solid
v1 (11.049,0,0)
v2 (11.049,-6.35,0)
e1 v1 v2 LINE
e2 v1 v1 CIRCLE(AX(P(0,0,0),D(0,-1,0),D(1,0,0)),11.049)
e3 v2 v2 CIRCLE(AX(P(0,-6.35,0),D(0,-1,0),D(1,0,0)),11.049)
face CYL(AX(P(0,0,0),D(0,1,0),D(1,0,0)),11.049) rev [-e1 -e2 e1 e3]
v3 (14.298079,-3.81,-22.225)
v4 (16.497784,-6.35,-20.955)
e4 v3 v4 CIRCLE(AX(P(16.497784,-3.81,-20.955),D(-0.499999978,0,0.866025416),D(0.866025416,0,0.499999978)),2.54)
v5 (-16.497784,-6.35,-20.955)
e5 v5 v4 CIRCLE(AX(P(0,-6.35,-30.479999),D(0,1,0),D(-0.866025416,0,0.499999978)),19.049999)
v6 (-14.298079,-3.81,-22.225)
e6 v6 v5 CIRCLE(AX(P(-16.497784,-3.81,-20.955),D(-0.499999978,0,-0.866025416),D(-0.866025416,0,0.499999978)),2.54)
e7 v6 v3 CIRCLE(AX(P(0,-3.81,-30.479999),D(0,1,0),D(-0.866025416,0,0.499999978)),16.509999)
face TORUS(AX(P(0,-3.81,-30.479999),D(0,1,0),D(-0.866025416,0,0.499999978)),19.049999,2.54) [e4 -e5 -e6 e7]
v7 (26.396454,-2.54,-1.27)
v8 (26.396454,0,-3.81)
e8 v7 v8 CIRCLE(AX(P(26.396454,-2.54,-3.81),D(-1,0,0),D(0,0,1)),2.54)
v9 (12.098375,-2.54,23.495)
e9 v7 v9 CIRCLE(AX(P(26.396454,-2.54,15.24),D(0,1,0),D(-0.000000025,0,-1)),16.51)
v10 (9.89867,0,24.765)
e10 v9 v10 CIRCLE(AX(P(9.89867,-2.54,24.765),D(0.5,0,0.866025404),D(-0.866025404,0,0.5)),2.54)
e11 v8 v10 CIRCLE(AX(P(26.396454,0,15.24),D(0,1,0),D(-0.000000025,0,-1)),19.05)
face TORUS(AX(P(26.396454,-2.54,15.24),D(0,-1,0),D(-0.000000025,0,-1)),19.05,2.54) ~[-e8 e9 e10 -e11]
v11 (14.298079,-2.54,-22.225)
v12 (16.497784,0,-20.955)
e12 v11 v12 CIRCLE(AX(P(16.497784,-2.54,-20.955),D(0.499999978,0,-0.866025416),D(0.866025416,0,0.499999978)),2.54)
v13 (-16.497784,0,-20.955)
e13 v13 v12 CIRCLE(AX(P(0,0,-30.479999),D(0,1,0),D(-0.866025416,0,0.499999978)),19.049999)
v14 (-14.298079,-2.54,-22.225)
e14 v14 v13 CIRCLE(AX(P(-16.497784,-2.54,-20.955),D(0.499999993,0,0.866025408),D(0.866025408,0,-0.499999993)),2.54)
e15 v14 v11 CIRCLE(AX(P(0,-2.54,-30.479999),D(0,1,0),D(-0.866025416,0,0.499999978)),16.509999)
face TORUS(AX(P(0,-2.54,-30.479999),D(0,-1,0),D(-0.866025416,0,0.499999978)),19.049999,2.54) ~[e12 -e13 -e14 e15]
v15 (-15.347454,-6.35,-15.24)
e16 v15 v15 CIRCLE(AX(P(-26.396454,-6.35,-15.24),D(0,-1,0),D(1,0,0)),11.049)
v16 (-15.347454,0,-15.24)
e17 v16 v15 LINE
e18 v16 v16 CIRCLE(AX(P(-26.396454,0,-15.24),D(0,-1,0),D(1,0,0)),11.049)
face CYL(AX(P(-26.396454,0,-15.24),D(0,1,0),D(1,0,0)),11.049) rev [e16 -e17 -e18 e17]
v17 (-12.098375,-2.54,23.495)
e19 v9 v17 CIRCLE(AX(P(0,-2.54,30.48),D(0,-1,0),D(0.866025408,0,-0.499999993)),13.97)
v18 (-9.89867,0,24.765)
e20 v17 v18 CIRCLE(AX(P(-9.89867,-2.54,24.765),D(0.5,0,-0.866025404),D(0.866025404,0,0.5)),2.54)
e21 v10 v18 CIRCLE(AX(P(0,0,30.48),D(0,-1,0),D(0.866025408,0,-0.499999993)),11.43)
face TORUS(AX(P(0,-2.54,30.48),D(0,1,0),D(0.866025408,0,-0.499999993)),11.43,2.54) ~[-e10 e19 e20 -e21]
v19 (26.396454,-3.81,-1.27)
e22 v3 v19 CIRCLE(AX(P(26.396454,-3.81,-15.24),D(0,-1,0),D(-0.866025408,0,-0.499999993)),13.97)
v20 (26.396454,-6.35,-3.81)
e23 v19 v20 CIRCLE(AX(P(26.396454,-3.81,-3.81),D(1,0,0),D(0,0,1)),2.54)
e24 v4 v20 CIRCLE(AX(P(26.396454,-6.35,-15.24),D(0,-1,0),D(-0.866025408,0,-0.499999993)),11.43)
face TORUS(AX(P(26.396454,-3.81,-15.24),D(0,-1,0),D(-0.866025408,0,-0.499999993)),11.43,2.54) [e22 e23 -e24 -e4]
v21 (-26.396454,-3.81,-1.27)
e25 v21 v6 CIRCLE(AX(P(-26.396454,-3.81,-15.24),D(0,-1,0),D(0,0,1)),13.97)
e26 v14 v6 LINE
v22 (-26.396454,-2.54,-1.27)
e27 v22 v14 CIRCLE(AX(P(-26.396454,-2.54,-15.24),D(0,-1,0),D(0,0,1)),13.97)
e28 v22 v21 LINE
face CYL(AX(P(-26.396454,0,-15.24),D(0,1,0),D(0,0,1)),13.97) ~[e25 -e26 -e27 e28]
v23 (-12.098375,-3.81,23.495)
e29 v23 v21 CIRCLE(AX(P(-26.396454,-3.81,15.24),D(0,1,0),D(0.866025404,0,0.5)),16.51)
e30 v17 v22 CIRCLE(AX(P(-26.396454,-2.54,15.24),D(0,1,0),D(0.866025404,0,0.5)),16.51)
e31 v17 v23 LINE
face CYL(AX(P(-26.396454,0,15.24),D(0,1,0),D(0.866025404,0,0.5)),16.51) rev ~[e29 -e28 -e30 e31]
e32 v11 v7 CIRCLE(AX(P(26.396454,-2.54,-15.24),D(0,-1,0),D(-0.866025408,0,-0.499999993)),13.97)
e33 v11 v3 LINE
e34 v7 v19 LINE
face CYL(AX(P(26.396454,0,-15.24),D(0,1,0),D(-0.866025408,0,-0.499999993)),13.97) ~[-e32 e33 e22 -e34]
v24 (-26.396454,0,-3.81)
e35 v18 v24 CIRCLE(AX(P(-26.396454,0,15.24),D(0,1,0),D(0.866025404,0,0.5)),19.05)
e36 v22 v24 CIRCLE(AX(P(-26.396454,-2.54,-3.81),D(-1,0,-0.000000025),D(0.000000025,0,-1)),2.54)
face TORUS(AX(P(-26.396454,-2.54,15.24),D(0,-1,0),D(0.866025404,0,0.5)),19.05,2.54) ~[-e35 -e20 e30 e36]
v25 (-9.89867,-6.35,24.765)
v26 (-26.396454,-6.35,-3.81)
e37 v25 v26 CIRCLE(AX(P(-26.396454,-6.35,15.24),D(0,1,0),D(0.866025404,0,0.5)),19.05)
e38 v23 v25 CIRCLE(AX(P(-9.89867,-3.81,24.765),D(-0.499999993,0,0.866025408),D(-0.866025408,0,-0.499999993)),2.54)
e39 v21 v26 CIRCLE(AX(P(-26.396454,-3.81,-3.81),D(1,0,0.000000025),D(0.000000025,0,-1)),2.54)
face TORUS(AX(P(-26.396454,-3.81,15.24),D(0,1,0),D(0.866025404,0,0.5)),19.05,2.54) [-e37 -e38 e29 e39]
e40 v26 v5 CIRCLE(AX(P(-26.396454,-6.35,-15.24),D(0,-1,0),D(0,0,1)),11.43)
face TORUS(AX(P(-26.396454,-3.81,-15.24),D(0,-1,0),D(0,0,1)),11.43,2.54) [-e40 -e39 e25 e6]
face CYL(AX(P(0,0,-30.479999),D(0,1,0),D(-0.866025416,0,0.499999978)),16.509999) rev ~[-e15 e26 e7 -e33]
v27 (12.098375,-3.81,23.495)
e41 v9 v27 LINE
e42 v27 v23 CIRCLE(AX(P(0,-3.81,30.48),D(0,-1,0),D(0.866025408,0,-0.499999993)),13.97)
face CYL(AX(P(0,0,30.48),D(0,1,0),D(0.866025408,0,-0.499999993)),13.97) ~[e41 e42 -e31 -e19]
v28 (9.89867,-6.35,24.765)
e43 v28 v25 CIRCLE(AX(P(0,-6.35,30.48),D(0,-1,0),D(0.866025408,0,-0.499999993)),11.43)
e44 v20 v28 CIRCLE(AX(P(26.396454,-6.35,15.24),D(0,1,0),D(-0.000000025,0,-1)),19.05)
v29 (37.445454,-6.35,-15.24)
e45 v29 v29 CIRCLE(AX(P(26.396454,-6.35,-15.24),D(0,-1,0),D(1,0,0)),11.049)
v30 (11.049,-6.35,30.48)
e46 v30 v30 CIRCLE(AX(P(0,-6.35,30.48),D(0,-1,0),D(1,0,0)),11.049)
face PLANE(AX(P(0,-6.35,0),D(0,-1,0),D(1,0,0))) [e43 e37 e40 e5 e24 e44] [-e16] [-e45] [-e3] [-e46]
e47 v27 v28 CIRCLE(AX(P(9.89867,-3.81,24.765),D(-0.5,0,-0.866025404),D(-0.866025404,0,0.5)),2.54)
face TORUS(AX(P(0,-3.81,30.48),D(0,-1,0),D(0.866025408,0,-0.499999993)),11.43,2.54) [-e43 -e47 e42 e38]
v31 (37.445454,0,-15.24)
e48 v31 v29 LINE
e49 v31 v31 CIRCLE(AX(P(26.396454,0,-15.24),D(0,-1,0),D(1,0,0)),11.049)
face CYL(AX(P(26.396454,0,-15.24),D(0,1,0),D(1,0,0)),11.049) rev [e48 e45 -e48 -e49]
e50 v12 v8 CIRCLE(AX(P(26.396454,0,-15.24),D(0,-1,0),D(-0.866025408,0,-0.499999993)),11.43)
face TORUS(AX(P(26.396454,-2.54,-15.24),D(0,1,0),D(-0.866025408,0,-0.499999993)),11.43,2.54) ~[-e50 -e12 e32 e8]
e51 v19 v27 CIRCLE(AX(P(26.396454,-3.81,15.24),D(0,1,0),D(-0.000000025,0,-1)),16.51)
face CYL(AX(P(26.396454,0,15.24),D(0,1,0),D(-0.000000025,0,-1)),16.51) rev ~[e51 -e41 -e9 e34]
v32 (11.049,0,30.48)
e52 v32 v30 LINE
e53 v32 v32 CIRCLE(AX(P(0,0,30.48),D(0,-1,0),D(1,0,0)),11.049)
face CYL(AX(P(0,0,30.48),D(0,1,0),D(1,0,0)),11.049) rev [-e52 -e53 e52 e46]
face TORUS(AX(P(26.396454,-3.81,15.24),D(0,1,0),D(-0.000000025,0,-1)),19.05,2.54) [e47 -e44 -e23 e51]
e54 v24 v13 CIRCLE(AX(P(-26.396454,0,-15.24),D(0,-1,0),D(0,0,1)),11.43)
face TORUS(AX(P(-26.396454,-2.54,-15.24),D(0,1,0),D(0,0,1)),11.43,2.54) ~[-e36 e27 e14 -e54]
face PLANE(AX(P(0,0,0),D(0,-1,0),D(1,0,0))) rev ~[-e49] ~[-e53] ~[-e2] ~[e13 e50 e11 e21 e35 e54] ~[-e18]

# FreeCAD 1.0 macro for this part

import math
import FreeCAD as App
import Part
import Sketcher
Q = App.Units.Quantity


def edges_at(feature, points):
    """Names of the edges that pass closest to the given points."""
    edges = feature.Shape.Edges
    near = lambda p: min(range(len(edges)), key=lambda i: edges[i].distToShape(Part.Vertex(*p))[0])
    return sorted({f"Edge{near(p) + 1}" for p in points})

doc = App.newDocument("Part")
body = doc.addObject("PartDesign::Body", "Body")

# Sketch on XZ plane
sketch1 = doc.addObject("Sketcher::SketchObject", "Sketch")
body.addObject(sketch1)
sketch1.AttachmentSupport = (doc.XZ_Plane, [""])
sketch1.MapMode = "FlatFace"
sketch1.addGeometry([
    Part.ArcOfCircle(Part.Circle(App.Vector(26, 15, 0), App.Vector(0, 0, 1), 17), math.radians(150), math.radians(270)),  # 0
    Part.ArcOfCircle(Part.Circle(App.Vector(0, 30, 0), App.Vector(0, 0, 1), 14), math.radians(-30), math.radians(210)),  # 1
    Part.ArcOfCircle(Part.Circle(App.Vector(-26, 15, 0), App.Vector(0, 0, 1), 17), math.radians(-90), math.radians(30)),  # 2
    Part.ArcOfCircle(Part.Circle(App.Vector(-26, -15, 0), App.Vector(0, 0, 1), 14), math.radians(90), math.radians(330)),  # 3
    Part.ArcOfCircle(Part.Circle(App.Vector(0, -30, 0), App.Vector(0, 0, 1), 17), math.radians(30), math.radians(150)),  # 4
    Part.ArcOfCircle(Part.Circle(App.Vector(26, -15, 0), App.Vector(0, 0, 1), 14), math.radians(-150), math.radians(90)),  # 5
    Part.Circle(App.Vector(-26, -15, 0), App.Vector(0, 0, 1), 11),  # 6
    Part.Circle(App.Vector(26, -15, 0), App.Vector(0, 0, 1), 11),  # 7
    Part.Circle(App.Vector(0, 0, 0), App.Vector(0, 0, 1), 11),  # 8
    Part.Circle(App.Vector(0, 30, 0), App.Vector(0, 0, 1), 11),  # 9
], False)
sketch1.addConstraint([
    Sketcher.Constraint("Tangent", 0, 1, 1, 1),
    Sketcher.Constraint("Tangent", 1, 2, 2, 2),
    Sketcher.Constraint("Tangent", 2, 1, 3, 1),
    Sketcher.Constraint("Tangent", 3, 2, 4, 2),
    Sketcher.Constraint("Tangent", 4, 1, 5, 1),
    Sketcher.Constraint("Tangent", 5, 2, 0, 2),
    Sketcher.Constraint("Coincident", 8, 3, -1, 1),
    Sketcher.Constraint("Coincident", 6, 3, 3, 3),
    Sketcher.Constraint("Coincident", 7, 3, 5, 3),
    Sketcher.Constraint("Coincident", 9, 3, 1, 3),
    Sketcher.Constraint("Equal", 0, 2),
    Sketcher.Constraint("Equal", 1, 3),
    Sketcher.Constraint("Equal", 2, 4),
    Sketcher.Constraint("Equal", 3, 5),
    Sketcher.Constraint("Equal", 6, 7),
    Sketcher.Constraint("Equal", 7, 8),
    Sketcher.Constraint("Equal", 8, 9),
    Sketcher.Constraint("Symmetric", 0, 3, 3, 3, -1, 1),
    Sketcher.Constraint("Symmetric", 0, 3, 2, 3, -2),
    Sketcher.Constraint("PointOnObject", 4, 3, -2),
    Sketcher.Constraint("Diameter", 6, Q("0.87 in")),
    Sketcher.Constraint("Radius", 0, Q("0.65 in")),
    Sketcher.Constraint("Radius", 1, Q("0.55 in")),
    Sketcher.Constraint("DistanceY", -1, 1, 1, 3, Q("1.2 in")),
])
pad1 = doc.addObject("PartDesign::Pad", "Pad")
body.addObject(pad1)
pad1.Profile = sketch1
pad1.Length = Q("0.25 in")
doc.recompute()

fillet = doc.addObject("PartDesign::Fillet", "Fillet")
body.addObject(fillet)
fillet.Base = (pad1, edges_at(pad1, [(-12.098, 0, 6.985), (0, -6.35, -13.97)]))
fillet.Radius = Q("0.1 in")

doc.recompute()
